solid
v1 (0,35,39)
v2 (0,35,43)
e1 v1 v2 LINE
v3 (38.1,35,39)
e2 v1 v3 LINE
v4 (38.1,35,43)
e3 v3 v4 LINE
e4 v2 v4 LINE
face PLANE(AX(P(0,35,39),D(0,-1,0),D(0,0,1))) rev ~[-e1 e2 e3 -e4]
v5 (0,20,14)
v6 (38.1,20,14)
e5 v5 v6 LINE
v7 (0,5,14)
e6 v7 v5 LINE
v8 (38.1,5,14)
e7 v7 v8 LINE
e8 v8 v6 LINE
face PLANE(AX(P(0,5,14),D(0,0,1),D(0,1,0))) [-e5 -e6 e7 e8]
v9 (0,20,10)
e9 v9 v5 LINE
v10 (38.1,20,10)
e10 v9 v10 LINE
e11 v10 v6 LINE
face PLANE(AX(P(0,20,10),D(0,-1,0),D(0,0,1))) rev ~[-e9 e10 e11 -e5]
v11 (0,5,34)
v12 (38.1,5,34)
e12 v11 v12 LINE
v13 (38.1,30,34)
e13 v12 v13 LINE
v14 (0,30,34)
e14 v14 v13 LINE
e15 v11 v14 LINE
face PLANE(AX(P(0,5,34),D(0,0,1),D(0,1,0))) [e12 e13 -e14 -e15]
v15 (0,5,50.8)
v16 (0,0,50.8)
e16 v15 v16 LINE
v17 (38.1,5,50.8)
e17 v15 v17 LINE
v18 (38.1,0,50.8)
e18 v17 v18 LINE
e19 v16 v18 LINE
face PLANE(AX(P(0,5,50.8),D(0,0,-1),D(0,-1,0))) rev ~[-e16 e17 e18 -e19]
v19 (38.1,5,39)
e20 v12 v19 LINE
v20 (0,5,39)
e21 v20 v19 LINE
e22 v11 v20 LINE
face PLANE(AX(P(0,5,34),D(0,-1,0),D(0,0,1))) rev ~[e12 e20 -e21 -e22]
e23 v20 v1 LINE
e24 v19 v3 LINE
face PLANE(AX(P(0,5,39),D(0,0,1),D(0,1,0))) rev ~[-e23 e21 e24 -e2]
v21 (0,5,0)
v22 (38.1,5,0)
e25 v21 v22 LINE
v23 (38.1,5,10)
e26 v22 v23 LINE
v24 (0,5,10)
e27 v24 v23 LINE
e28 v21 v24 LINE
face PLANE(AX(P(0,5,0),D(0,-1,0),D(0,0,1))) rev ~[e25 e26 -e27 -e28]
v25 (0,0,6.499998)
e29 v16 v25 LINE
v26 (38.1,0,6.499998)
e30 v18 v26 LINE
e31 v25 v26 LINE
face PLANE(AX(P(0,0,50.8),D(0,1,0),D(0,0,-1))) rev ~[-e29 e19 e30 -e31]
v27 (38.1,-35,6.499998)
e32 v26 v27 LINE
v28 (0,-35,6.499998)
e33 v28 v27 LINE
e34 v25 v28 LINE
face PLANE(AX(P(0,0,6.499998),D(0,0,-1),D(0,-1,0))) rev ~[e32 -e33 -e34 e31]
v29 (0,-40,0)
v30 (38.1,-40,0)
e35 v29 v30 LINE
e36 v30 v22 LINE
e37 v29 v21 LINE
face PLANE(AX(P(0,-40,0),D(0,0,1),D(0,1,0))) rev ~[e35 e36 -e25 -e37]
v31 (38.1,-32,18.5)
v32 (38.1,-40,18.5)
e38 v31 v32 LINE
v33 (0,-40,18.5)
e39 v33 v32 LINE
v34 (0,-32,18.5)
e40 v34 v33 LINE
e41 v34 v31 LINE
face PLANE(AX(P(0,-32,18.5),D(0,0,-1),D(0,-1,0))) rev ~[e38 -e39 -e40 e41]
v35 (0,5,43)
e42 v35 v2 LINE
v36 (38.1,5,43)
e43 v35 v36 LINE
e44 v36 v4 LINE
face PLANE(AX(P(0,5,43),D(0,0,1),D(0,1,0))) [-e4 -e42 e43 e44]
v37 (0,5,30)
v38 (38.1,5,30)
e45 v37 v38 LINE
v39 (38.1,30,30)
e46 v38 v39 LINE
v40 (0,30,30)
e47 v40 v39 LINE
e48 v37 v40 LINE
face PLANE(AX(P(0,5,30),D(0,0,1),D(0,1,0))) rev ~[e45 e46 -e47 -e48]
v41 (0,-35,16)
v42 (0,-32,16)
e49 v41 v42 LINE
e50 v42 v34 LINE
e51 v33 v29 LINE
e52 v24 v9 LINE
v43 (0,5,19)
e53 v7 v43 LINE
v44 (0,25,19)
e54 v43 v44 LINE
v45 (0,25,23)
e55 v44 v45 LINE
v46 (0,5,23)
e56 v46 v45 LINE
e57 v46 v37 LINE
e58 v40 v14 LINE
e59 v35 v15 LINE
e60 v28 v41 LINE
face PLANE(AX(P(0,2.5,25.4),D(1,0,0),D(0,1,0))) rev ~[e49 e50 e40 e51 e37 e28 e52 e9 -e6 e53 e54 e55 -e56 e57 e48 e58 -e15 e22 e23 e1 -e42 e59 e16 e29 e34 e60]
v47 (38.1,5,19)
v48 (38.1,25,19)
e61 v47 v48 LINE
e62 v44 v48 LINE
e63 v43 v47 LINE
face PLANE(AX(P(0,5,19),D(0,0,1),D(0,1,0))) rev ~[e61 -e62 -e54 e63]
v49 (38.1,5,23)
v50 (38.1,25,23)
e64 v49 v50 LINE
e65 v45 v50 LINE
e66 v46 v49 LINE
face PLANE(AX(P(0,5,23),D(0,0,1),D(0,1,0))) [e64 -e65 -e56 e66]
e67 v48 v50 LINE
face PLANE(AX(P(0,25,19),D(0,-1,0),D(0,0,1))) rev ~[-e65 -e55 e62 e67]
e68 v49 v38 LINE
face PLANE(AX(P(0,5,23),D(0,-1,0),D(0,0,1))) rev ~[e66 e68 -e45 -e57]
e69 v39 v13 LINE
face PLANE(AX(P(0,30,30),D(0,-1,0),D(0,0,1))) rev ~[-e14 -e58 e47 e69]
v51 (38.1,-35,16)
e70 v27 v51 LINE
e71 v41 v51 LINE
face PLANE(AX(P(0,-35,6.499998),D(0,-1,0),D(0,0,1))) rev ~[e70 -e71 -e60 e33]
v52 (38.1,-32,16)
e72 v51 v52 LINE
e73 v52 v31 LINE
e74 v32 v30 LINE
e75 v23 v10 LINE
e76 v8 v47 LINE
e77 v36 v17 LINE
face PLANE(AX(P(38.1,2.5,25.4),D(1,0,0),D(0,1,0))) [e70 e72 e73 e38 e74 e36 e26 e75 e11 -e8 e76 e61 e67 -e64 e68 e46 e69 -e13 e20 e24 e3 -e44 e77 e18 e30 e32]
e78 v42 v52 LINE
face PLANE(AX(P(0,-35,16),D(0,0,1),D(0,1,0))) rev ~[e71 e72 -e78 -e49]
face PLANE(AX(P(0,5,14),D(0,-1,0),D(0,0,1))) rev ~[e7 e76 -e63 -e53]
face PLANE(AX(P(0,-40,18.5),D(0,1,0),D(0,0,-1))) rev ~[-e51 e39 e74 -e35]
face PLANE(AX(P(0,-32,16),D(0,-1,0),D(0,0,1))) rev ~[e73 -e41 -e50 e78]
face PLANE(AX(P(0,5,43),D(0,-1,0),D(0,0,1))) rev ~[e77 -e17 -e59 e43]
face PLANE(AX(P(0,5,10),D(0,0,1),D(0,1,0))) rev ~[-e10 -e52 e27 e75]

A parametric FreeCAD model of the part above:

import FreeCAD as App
import Part
import Sketcher

V = App.Vector
Q = App.Units.Quantity

doc = App.newDocument("Part")
params = doc.addObject("Spreadsheet::Sheet", "Params")
for row, (alias, value) in enumerate([
    ("sketch1_width", "15 mm"),
    ("sketch1_width2", "20 mm"),
    ("sketch1_width3", "25 mm"),
    ("sketch1_width4", "30 mm"),
    ("sketch1_width5", "5 mm"),
    ("pad1_length", "38.1 mm"),
], start=1):
    params.set(f"A{row}", alias)
    params.set(f"B{row}", "=" + value)
    params.setAlias(f"B{row}", alias)

body = doc.addObject("PartDesign::Body", "Body")

# Sketch on YZ plane
sketch1 = body.newObject("Sketcher::SketchObject", "Sketch")
sketch1.AttachmentSupport = (doc.getObject("YZ_Plane"), [""])
sketch1.MapMode = "FlatFace"
sketch1.addGeometry(Part.LineSegment(V(5, 0, 0), V(5, 10, 0)), False)
sketch1.addGeometry(Part.LineSegment(V(5, 10, 0), V(20, 10, 0)), False)
sketch1.addGeometry(Part.LineSegment(V(20, 10, 0), V(20, 14, 0)), False)
sketch1.addGeometry(Part.LineSegment(V(20, 14, 0), V(5, 14, 0)), False)
sketch1.addGeometry(Part.LineSegment(V(5, 14, 0), V(5, 19, 0)), False)
sketch1.addGeometry(Part.LineSegment(V(5, 19, 0), V(25, 19, 0)), False)
sketch1.addGeometry(Part.LineSegment(V(25, 19, 0), V(25, 23, 0)), False)
sketch1.addGeometry(Part.LineSegment(V(25, 23, 0), V(5, 23, 0)), False)
sketch1.addGeometry(Part.LineSegment(V(5, 23, 0), V(5, 30, 0)), False)
sketch1.addGeometry(Part.LineSegment(V(5, 30, 0), V(30, 30, 0)), False)
sketch1.addGeometry(Part.LineSegment(V(30, 30, 0), V(30, 34, 0)), False)
sketch1.addGeometry(Part.LineSegment(V(30, 34, 0), V(5, 34, 0)), False)
sketch1.addGeometry(Part.LineSegment(V(5, 34, 0), V(5, 39, 0)), False)
sketch1.addGeometry(Part.LineSegment(V(5, 39, 0), V(35, 39, 0)), False)
sketch1.addGeometry(Part.LineSegment(V(35, 39, 0), V(35, 43, 0)), False)
sketch1.addGeometry(Part.LineSegment(V(35, 43, 0), V(5, 43, 0)), False)
sketch1.addGeometry(Part.LineSegment(V(5, 43, 0), V(5, 50.8, 0)), False)
sketch1.addGeometry(Part.LineSegment(V(5, 50.8, 0), V(0, 50.8, 0)), False)
sketch1.addGeometry(Part.LineSegment(V(0, 50.8, 0), V(0, 6.5, 0)), False)
sketch1.addGeometry(Part.LineSegment(V(0, 6.5, 0), V(-35, 6.5, 0)), False)
sketch1.addGeometry(Part.LineSegment(V(-35, 6.5, 0), V(-35, 16, 0)), False)
sketch1.addGeometry(Part.LineSegment(V(-35, 16, 0), V(-32, 16, 0)), False)
sketch1.addGeometry(Part.LineSegment(V(-32, 16, 0), V(-32, 18.5, 0)), False)
sketch1.addGeometry(Part.LineSegment(V(-32, 18.5, 0), V(-40, 18.5, 0)), False)
sketch1.addGeometry(Part.LineSegment(V(-40, 18.5, 0), V(-40, 0, 0)), False)
sketch1.addGeometry(Part.LineSegment(V(-40, 0, 0), V(5, 0, 0)), False)
sketch1.addConstraint(Sketcher.Constraint("Coincident", 0, 2, 1, 1))
sketch1.addConstraint(Sketcher.Constraint("Coincident", 1, 2, 2, 1))
sketch1.addConstraint(Sketcher.Constraint("Coincident", 2, 2, 3, 1))
sketch1.addConstraint(Sketcher.Constraint("Coincident", 3, 2, 4, 1))
sketch1.addConstraint(Sketcher.Constraint("Coincident", 4, 2, 5, 1))
sketch1.addConstraint(Sketcher.Constraint("Coincident", 5, 2, 6, 1))
sketch1.addConstraint(Sketcher.Constraint("Coincident", 6, 2, 7, 1))
sketch1.addConstraint(Sketcher.Constraint("Coincident", 7, 2, 8, 1))
sketch1.addConstraint(Sketcher.Constraint("Coincident", 8, 2, 9, 1))
sketch1.addConstraint(Sketcher.Constraint("Coincident", 9, 2, 10, 1))
sketch1.addConstraint(Sketcher.Constraint("Coincident", 10, 2, 11, 1))
sketch1.addConstraint(Sketcher.Constraint("Coincident", 11, 2, 12, 1))
sketch1.addConstraint(Sketcher.Constraint("Coincident", 12, 2, 13, 1))
sketch1.addConstraint(Sketcher.Constraint("Coincident", 13, 2, 14, 1))
sketch1.addConstraint(Sketcher.Constraint("Coincident", 14, 2, 15, 1))
sketch1.addConstraint(Sketcher.Constraint("Coincident", 15, 2, 16, 1))
sketch1.addConstraint(Sketcher.Constraint("Coincident", 16, 2, 17, 1))
sketch1.addConstraint(Sketcher.Constraint("Coincident", 17, 2, 18, 1))
sketch1.addConstraint(Sketcher.Constraint("Coincident", 18, 2, 19, 1))
sketch1.addConstraint(Sketcher.Constraint("Coincident", 19, 2, 20, 1))
sketch1.addConstraint(Sketcher.Constraint("Coincident", 20, 2, 21, 1))
sketch1.addConstraint(Sketcher.Constraint("Coincident", 21, 2, 22, 1))
sketch1.addConstraint(Sketcher.Constraint("Coincident", 22, 2, 23, 1))
sketch1.addConstraint(Sketcher.Constraint("Coincident", 23, 2, 24, 1))
sketch1.addConstraint(Sketcher.Constraint("Coincident", 24, 2, 25, 1))
sketch1.addConstraint(Sketcher.Constraint("Coincident", 25, 2, 0, 1))
sketch1.addConstraint(Sketcher.Constraint("Vertical", 0))
sketch1.addConstraint(Sketcher.Constraint("Horizontal", 1))
sketch1.addConstraint(Sketcher.Constraint("Vertical", 2))
sketch1.addConstraint(Sketcher.Constraint("Horizontal", 3))
sketch1.addConstraint(Sketcher.Constraint("Vertical", 4))
sketch1.addConstraint(Sketcher.Constraint("Horizontal", 5))
sketch1.addConstraint(Sketcher.Constraint("Vertical", 6))
sketch1.addConstraint(Sketcher.Constraint("Horizontal", 7))
sketch1.addConstraint(Sketcher.Constraint("Vertical", 8))
sketch1.addConstraint(Sketcher.Constraint("Horizontal", 9))
sketch1.addConstraint(Sketcher.Constraint("Vertical", 10))
sketch1.addConstraint(Sketcher.Constraint("Horizontal", 11))
sketch1.addConstraint(Sketcher.Constraint("Vertical", 12))
sketch1.addConstraint(Sketcher.Constraint("Horizontal", 13))
sketch1.addConstraint(Sketcher.Constraint("Vertical", 14))
sketch1.addConstraint(Sketcher.Constraint("Horizontal", 15))
sketch1.addConstraint(Sketcher.Constraint("Vertical", 16))
sketch1.addConstraint(Sketcher.Constraint("Horizontal", 17))
sketch1.addConstraint(Sketcher.Constraint("Vertical", 18))
sketch1.addConstraint(Sketcher.Constraint("Horizontal", 19))
sketch1.addConstraint(Sketcher.Constraint("Vertical", 20))
sketch1.addConstraint(Sketcher.Constraint("Horizontal", 21))
sketch1.addConstraint(Sketcher.Constraint("Vertical", 22))
sketch1.addConstraint(Sketcher.Constraint("Horizontal", 23))
sketch1.addConstraint(Sketcher.Constraint("Vertical", 24))
sketch1.addConstraint(Sketcher.Constraint("Horizontal", 25))
sketch1.addConstraint(Sketcher.Constraint("PointOnObject", 17, 2, -2))
sketch1.addConstraint(Sketcher.Constraint("PointOnObject", 24, 2, -1))
sketch1.addConstraint(Sketcher.Constraint("Vertical", 0, 2, 3, 2))
sketch1.addConstraint(Sketcher.Constraint("Vertical", 4, 2, 7, 2))
sketch1.addConstraint(Sketcher.Constraint("Vertical", 8, 2, 11, 2))
sketch1.addConstraint(Sketcher.Constraint("Vertical", 12, 2, 15, 2))
sketch1.addConstraint(Sketcher.Constraint("Equal", 17, 4))
sketch1.addConstraint(Sketcher.Constraint("Equal", 2, 6))
sketch1.addConstraint(Sketcher.Constraint("Equal", 6, 10))
sketch1.addConstraint(Sketcher.Constraint("Equal", 4, 12))
sketch1.addConstraint(Sketcher.Constraint("Equal", 10, 14))
sketch1.addConstraint(Sketcher.Constraint("DistanceX", 1, 1, 1, 2, Q("15 mm")))
sketch1.addConstraint(Sketcher.Constraint("DistanceX", 5, 1, 5, 2, Q("20 mm")))
sketch1.addConstraint(Sketcher.Constraint("DistanceX", 9, 1, 9, 2, Q("25 mm")))
sketch1.addConstraint(Sketcher.Constraint("DistanceX", 13, 1, 13, 2, Q("30 mm")))
sketch1.addConstraint(Sketcher.Constraint("DistanceX", 17, 2, 17, 1, Q("5 mm")))
sketch1.addConstraint(Sketcher.Constraint("DistanceX", 19, 2, 19, 1, Q("35 mm")))
sketch1.addConstraint(Sketcher.Constraint("DistanceX", 21, 1, 21, 2, Q("3 mm")))
sketch1.addConstraint(Sketcher.Constraint("DistanceX", 23, 2, 23, 1, Q("8 mm")))
sketch1.addConstraint(Sketcher.Constraint("DistanceY", 0, 1, 0, 2, Q("10 mm")))
sketch1.addConstraint(Sketcher.Constraint("DistanceY", 2, 1, 2, 2, Q("4 mm")))
sketch1.addConstraint(Sketcher.Constraint("DistanceY", 8, 1, 8, 2, Q("7 mm")))
sketch1.addConstraint(Sketcher.Constraint("DistanceY", 16, 1, 16, 2, Q("7.8 mm")))
sketch1.addConstraint(Sketcher.Constraint("DistanceY", 22, 1, 22, 2, Q("2.5 mm")))
sketch1.addConstraint(Sketcher.Constraint("DistanceY", 24, 2, 24, 1, Q("18.5 mm")))
sketch1.addConstraint(Sketcher.Constraint("DistanceY", 18, 2, 18, 1, Q("44.300002 mm")))
sketch1.setExpression("Constraints[63]", "Params.sketch1_width")
sketch1.setExpression("Constraints[64]", "Params.sketch1_width2")
sketch1.setExpression("Constraints[65]", "Params.sketch1_width3")
sketch1.setExpression("Constraints[66]", "Params.sketch1_width4")
sketch1.setExpression("Constraints[67]", "Params.sketch1_width5")
pad1 = body.newObject("PartDesign::Pad", "Pad")
pad1.Profile = sketch1
pad1.setExpression("Length", "Params.pad1_length")

doc.recompute()
